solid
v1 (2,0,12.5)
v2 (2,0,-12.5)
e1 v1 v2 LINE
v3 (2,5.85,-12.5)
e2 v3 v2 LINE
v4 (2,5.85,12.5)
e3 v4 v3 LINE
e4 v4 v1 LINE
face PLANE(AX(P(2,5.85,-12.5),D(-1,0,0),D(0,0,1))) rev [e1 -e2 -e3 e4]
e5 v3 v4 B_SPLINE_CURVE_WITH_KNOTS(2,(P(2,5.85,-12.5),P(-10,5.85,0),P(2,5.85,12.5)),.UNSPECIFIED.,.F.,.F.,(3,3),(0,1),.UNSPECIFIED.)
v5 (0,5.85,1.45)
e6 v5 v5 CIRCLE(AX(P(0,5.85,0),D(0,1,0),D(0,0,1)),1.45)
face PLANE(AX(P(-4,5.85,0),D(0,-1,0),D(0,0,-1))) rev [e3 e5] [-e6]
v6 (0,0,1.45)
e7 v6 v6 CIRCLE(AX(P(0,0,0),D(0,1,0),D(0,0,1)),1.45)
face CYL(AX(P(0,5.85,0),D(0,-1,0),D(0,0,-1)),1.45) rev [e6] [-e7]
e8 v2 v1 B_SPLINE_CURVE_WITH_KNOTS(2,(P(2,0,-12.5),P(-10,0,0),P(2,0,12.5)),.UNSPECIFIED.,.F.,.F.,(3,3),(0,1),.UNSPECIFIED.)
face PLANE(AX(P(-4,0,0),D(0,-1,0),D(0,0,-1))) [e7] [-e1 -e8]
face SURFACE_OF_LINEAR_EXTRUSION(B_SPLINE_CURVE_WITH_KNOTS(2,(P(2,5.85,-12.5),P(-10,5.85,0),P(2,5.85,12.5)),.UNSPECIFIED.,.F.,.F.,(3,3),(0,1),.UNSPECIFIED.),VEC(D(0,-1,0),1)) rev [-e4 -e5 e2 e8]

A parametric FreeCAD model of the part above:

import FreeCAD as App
import Part
import Sketcher
from FreeCAD import Vector

doc = App.newDocument("Part")
body = doc.addObject("PartDesign::Body", "Body")

# Sketch on XZ plane
sketch1 = doc.addObject("Sketcher::SketchObject", "Sketch")
body.addObject(sketch1)
sketch1.AttachmentSupport = (doc.XZ_Plane, [""])
sketch1.MapMode = "FlatFace"
sketch1.addGeometry([
    Part.LineSegment(Vector(2, 12.5, 0), Vector(2, -12.5, 0)),
    Part.BSplineCurve([Vector(2, -12.5, 0), Vector(-10, 0, 0), Vector(2, 12.5, 0)], [3, 3], [0, 1], False, 2, [1, 1, 1], False),
    Part.Circle(Vector(0, 0, 0), Vector(0, 0, 1), 1.45),
], False)
sketch1.addConstraint([
    Sketcher.Constraint("Block", 1),
    Sketcher.Constraint("Coincident", 0, 1, 1, 2),
    Sketcher.Constraint("Coincident", 1, 1, 0, 2),
    Sketcher.Constraint("Coincident", 2, 3, -1, 1),
    Sketcher.Constraint("Diameter", 2, 2.9),
])
pad1 = doc.addObject("PartDesign::Pad", "Pad")
body.addObject(pad1)
pad1.Profile = sketch1
pad1.Length = 5.85
pad1.Reversed = True

doc.recompute()
